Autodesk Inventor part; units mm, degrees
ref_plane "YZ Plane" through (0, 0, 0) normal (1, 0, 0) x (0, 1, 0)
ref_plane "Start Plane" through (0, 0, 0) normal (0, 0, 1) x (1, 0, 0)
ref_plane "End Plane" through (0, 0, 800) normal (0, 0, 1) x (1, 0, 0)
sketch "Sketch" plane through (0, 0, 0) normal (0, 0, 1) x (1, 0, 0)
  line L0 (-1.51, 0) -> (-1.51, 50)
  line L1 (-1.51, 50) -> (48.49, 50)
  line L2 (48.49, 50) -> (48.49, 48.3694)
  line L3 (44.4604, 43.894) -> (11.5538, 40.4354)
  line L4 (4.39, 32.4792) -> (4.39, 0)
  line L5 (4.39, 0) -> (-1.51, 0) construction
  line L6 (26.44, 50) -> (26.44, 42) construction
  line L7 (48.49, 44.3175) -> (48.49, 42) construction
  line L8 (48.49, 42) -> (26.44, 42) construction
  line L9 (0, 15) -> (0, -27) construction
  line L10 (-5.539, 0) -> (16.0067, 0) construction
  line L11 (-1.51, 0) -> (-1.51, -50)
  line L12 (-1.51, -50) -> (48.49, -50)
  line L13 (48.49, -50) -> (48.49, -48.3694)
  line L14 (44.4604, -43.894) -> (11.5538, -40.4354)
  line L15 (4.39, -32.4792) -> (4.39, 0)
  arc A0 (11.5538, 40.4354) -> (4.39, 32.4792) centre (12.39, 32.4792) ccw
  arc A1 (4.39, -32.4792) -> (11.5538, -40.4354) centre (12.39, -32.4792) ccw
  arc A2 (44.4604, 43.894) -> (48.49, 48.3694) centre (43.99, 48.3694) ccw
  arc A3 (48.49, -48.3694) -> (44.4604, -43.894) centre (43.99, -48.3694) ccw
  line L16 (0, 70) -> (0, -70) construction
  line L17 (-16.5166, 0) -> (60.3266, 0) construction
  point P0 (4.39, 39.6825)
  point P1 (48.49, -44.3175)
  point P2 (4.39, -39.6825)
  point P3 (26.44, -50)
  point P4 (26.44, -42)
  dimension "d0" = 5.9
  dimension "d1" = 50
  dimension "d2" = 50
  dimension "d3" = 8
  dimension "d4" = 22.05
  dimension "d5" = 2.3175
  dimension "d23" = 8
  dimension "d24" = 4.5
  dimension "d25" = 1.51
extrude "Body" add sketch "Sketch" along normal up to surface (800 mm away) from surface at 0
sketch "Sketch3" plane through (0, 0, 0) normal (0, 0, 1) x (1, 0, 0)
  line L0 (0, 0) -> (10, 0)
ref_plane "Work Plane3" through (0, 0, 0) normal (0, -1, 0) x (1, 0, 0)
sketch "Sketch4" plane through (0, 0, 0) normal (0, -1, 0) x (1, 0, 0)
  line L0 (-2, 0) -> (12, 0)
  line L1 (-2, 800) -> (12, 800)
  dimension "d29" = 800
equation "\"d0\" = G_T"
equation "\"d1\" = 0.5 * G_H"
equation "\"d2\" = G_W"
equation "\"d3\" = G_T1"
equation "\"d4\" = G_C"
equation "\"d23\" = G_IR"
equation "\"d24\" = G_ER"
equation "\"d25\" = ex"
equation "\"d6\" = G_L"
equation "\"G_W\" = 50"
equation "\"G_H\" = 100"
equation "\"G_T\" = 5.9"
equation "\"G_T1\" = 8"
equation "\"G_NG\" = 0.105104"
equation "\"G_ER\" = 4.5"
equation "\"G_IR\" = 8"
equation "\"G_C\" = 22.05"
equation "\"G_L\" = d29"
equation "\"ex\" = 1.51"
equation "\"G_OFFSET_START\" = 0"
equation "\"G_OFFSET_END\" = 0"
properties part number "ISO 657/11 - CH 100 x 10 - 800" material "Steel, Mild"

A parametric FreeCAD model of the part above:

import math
import FreeCAD as App
import Part
import Sketcher
from FreeCAD import Vector
Q = App.Units.Quantity

doc = App.newDocument("Part")
body = doc.addObject("PartDesign::Body", "Body")

sketch1 = body.newObject("Sketcher::SketchObject", "Sketch")
sketch1.AttachmentSupport = (doc.getObject("XY_Plane"), [""])
sketch1.MapMode = "FlatFace"
sketch1.addGeometry(Part.LineSegment(Vector(-1.51, 50, 0), Vector(-1.51, -50, 0)), False)
sketch1.addGeometry(Part.LineSegment(Vector(-1.51, -50, 0), Vector(48.49, -50, 0)), False)
sketch1.addGeometry(Part.LineSegment(Vector(48.49, -50, 0), Vector(48.49, -48.3694, 0)), False)
sketch1.addGeometry(Part.ArcOfCircle(Part.Circle(Vector(43.99, -48.3694, 0), Vector(0, 0, 1), 4.5), math.radians(0), math.radians(83.999791)), False)
sketch1.addGeometry(Part.LineSegment(Vector(44.4604, -43.894, 0), Vector(11.5538, -40.4354, 0)), False)
sketch1.addGeometry(Part.ArcOfCircle(Part.Circle(Vector(12.39, -32.4792, 0), Vector(0, 0, 1), 8), math.radians(180), math.radians(264.000216)), False)
sketch1.addGeometry(Part.LineSegment(Vector(4.39, -32.4792, 0), Vector(4.39, 32.4792, 0)), False)
sketch1.addGeometry(Part.ArcOfCircle(Part.Circle(Vector(12.39, 32.4792, 0), Vector(0, 0, 1), 8.000022), math.radians(95.999784), math.radians(180)), False)
sketch1.addGeometry(Part.LineSegment(Vector(11.5538, 40.4354, 0), Vector(44.4604, 43.894, 0)), False)
sketch1.addGeometry(Part.ArcOfCircle(Part.Circle(Vector(43.99, 48.3694, 0), Vector(0, 0, 1), 4.500053), math.radians(-83.999791), math.radians(0)), False)
sketch1.addGeometry(Part.LineSegment(Vector(48.49, 48.3694, 0), Vector(48.49, 50, 0)), False)
sketch1.addGeometry(Part.LineSegment(Vector(48.49, 50, 0), Vector(-1.51, 50, 0)), False)
sketch1.addConstraint(Sketcher.Constraint("Coincident", 0, 2, 1, 1))
sketch1.addConstraint(Sketcher.Constraint("Coincident", 1, 2, 2, 1))
sketch1.addConstraint(Sketcher.Constraint("Tangent", 2, 2, 3, 1))
sketch1.addConstraint(Sketcher.Constraint("Tangent", 3, 2, 4, 1))
sketch1.addConstraint(Sketcher.Constraint("Tangent", 4, 2, 5, 2))
sketch1.addConstraint(Sketcher.Constraint("Tangent", 5, 1, 6, 1))
sketch1.addConstraint(Sketcher.Constraint("Tangent", 6, 2, 7, 2))
sketch1.addConstraint(Sketcher.Constraint("Tangent", 7, 1, 8, 1))
sketch1.addConstraint(Sketcher.Constraint("Tangent", 8, 2, 9, 1))
sketch1.addConstraint(Sketcher.Constraint("Tangent", 9, 2, 10, 1))
sketch1.addConstraint(Sketcher.Constraint("Coincident", 10, 2, 11, 1))
sketch1.addConstraint(Sketcher.Constraint("Coincident", 11, 2, 0, 1))
sketch1.addConstraint(Sketcher.Constraint("Vertical", 0))
sketch1.addConstraint(Sketcher.Constraint("Horizontal", 1))
sketch1.addConstraint(Sketcher.Constraint("Vertical", 2))
sketch1.addConstraint(Sketcher.Constraint("Vertical", 6))
sketch1.addConstraint(Sketcher.Constraint("Vertical", 10))
sketch1.addConstraint(Sketcher.Constraint("Horizontal", 11))
sketch1.addConstraint(Sketcher.Constraint("Equal", 5, 7))
sketch1.addConstraint(Sketcher.Constraint("Equal", 3, 9))
sketch1.addConstraint(Sketcher.Constraint("Symmetric", 3, 3, 9, 3, -1))
sketch1.addConstraint(Sketcher.Constraint("Vertical", 4, 2, 7, 1))
sketch1.addConstraint(Sketcher.Constraint("Equal", 2, 10))
sketch1.addConstraint(Sketcher.Constraint("Radius", 5, Q("8 mm")))
sketch1.addConstraint(Sketcher.Constraint("Radius", 3, Q("4.5 mm")))
sketch1.addConstraint(Sketcher.Constraint("DistanceX", 1, 1, 1, 2, Q("50 mm")))
sketch1.addConstraint(Sketcher.Constraint("DistanceY", 0, 2, -1, 1, Q("50 mm")))
sketch1.addConstraint(Sketcher.Constraint("DistanceX", 0, 2, 5, 1, Q("5.9 mm")))
sketch1.addConstraint(Sketcher.Constraint("DistanceX", 0, 2, -1, 1, Q("1.51 mm")))
sketch1.addConstraint(Sketcher.Constraint("Angle", 4, Q("174 deg")))
sketch1.addConstraint(Sketcher.Constraint("DistanceY", 2, 1, 2, 2, Q("1.6306 mm")))
pad1 = body.newObject("PartDesign::Pad", "Pad")
pad1.Profile = sketch1
pad1.Length = 800

doc.recompute()
